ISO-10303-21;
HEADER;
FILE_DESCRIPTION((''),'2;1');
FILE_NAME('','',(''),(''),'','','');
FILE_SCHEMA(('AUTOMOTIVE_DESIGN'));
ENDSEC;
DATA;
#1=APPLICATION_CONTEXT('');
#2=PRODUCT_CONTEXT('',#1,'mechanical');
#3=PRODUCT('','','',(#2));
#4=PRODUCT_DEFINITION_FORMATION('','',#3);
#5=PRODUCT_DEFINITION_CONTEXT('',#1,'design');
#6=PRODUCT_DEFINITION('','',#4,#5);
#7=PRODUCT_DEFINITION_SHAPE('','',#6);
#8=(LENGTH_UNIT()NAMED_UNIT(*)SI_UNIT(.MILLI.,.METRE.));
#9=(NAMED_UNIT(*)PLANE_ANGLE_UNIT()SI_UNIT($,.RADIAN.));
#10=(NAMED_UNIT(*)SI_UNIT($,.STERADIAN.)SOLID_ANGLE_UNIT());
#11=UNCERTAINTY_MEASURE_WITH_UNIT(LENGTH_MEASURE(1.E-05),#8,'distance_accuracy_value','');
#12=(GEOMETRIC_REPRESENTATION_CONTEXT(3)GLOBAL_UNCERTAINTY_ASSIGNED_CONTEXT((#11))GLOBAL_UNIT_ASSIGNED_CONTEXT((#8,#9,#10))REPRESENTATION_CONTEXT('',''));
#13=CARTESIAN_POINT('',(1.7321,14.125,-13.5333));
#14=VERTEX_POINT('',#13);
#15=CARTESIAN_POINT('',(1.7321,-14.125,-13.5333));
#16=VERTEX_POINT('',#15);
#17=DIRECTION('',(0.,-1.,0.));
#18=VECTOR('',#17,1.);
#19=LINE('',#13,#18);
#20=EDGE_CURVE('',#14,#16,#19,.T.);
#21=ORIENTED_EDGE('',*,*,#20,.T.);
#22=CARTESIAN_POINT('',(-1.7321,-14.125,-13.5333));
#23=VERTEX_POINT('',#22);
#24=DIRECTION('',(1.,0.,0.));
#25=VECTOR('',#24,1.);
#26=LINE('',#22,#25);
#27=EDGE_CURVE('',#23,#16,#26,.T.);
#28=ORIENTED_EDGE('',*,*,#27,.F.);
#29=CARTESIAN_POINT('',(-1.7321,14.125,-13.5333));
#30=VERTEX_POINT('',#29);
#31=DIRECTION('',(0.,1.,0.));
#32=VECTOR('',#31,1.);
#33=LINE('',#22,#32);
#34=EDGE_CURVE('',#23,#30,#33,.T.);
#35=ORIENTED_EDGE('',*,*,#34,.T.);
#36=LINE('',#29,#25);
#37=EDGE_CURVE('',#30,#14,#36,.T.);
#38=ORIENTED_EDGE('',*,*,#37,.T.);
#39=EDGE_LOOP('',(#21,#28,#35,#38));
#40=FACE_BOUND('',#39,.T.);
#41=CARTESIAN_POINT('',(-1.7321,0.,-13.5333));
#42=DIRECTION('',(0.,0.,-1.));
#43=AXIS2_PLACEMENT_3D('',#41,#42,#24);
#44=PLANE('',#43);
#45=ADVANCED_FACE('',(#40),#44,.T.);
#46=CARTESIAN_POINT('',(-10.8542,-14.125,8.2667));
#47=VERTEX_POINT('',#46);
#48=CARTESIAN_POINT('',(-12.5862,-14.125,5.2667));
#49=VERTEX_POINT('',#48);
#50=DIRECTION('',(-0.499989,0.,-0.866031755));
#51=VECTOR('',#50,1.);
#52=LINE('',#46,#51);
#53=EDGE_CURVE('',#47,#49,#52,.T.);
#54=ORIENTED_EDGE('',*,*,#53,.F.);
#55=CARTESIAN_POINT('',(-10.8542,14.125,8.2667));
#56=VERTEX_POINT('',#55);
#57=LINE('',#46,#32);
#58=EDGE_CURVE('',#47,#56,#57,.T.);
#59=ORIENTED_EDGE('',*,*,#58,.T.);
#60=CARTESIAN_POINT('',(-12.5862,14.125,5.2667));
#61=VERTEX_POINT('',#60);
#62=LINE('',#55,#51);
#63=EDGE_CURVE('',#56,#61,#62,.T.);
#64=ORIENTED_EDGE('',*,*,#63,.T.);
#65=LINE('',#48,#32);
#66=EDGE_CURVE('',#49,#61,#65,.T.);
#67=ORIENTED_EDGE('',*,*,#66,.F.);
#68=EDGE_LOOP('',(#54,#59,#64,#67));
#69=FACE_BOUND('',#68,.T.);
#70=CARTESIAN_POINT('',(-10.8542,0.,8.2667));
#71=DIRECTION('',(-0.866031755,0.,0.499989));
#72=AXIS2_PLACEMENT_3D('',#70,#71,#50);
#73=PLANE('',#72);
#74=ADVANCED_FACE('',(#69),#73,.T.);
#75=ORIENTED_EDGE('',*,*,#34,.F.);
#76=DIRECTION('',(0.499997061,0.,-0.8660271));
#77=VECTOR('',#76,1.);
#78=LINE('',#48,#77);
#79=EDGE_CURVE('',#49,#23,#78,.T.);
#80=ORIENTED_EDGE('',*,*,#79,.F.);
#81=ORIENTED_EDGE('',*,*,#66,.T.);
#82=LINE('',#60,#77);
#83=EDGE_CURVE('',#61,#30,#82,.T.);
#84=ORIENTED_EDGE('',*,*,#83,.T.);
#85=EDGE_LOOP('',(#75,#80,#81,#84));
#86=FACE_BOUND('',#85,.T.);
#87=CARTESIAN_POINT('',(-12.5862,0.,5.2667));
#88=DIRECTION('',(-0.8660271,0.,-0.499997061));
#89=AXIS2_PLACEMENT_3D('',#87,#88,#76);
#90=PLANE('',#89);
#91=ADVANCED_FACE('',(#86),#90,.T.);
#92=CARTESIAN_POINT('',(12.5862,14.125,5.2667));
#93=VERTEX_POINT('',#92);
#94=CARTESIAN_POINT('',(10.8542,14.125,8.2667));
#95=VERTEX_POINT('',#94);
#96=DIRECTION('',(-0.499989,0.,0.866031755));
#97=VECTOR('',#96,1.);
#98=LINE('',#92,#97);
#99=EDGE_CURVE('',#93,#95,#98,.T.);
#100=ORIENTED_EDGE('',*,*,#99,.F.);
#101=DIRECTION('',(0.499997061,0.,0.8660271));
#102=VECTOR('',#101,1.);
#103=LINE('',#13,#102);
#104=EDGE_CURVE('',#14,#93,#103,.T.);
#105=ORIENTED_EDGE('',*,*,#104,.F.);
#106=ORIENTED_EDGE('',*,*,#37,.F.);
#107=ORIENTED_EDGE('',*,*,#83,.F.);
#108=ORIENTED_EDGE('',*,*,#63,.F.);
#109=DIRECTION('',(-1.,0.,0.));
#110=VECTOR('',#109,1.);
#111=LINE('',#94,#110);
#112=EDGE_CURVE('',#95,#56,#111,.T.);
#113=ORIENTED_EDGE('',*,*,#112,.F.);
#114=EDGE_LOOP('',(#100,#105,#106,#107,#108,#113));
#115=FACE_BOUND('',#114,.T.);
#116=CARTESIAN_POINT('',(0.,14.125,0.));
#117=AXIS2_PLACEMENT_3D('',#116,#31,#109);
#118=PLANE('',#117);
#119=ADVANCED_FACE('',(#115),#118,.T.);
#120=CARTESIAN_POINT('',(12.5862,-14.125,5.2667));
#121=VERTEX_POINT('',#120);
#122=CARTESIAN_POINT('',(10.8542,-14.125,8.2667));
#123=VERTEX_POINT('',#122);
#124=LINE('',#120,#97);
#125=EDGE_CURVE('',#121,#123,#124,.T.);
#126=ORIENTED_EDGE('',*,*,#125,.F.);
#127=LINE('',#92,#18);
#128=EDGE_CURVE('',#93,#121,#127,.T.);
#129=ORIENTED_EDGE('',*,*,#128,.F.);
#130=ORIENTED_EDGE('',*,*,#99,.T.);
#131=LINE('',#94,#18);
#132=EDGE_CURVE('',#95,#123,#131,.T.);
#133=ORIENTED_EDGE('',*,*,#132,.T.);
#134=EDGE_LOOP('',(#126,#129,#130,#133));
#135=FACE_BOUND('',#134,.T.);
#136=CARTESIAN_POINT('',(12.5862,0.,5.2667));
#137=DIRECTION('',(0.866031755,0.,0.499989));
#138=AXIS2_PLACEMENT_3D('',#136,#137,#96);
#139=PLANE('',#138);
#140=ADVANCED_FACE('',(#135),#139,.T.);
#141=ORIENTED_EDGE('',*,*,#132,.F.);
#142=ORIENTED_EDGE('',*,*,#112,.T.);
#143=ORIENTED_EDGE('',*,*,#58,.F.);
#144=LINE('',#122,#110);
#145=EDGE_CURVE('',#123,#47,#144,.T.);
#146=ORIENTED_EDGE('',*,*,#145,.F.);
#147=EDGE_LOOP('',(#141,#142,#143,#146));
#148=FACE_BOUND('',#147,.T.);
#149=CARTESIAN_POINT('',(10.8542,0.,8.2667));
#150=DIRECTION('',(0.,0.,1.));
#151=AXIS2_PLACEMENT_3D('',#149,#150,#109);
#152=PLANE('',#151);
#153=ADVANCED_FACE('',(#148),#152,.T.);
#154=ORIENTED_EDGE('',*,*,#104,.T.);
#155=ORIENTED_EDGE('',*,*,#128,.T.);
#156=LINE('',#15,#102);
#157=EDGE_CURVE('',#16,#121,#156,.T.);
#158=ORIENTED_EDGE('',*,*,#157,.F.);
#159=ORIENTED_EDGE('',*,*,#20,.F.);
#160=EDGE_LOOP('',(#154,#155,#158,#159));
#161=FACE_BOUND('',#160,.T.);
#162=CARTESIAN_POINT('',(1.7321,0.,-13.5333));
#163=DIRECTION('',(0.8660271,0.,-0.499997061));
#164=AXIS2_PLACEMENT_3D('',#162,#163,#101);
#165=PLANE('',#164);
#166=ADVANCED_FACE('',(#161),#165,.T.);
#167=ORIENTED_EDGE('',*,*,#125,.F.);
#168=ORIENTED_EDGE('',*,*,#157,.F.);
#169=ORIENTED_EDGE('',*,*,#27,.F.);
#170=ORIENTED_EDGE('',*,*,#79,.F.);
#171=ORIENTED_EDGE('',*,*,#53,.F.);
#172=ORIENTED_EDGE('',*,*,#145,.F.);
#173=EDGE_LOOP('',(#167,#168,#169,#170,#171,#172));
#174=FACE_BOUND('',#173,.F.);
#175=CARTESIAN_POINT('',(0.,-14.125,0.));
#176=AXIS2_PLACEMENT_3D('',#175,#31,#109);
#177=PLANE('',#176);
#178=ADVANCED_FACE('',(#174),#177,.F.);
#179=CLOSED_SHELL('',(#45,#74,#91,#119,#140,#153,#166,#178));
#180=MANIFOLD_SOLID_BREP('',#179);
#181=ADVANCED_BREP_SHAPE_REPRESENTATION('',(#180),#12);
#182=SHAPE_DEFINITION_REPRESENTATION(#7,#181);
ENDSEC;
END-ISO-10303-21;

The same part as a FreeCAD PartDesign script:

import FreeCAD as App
import Part
import Sketcher

V = App.Vector
Q = App.Units.Quantity

doc = App.newDocument("Part")
params = doc.addObject("Spreadsheet::Sheet", "Params")
for row, (alias, value) in enumerate([
    ("pad1_length", "28.25 mm"),
], start=1):
    params.set(f"A{row}", alias)
    params.set(f"B{row}", "=" + value)
    params.setAlias(f"B{row}", alias)

body = doc.addObject("PartDesign::Body", "Body")

# Sketch on XZ plane
sketch1 = body.newObject("Sketcher::SketchObject", "Sketch")
sketch1.AttachmentSupport = (doc.getObject("XZ_Plane"), [""])
sketch1.MapMode = "FlatFace"
sketch1.addGeometry([
    Part.LineSegment(V(1.7321, -13.5333, 0), V(-1.7321, -13.5333, 0)),  # 0
    Part.LineSegment(V(-1.7321, -13.5333, 0), V(-12.5862, 5.2667, 0)),  # 1
    Part.LineSegment(V(-12.5862, 5.2667, 0), V(-10.8542, 8.2667, 0)),  # 2
    Part.LineSegment(V(-10.8542, 8.2667, 0), V(10.8542, 8.2667, 0)),  # 3
    Part.LineSegment(V(10.8542, 8.2667, 0), V(12.5862, 5.2667, 0)),  # 4
    Part.LineSegment(V(12.5862, 5.2667, 0), V(1.7321, -13.5333, 0)),  # 5
], False)
sketch1.addConstraint([
    Sketcher.Constraint("Coincident", 0, 2, 1, 1),
    Sketcher.Constraint("Coincident", 1, 2, 2, 1),
    Sketcher.Constraint("Coincident", 2, 2, 3, 1),
    Sketcher.Constraint("Coincident", 3, 2, 4, 1),
    Sketcher.Constraint("Coincident", 4, 2, 5, 1),
    Sketcher.Constraint("Coincident", 5, 2, 0, 1),
    Sketcher.Constraint("Horizontal", 0),
    Sketcher.Constraint("Horizontal", 3),
    Sketcher.Constraint("Symmetric", 1, 2, 4, 2, -2),
    Sketcher.Constraint("Parallel", 1, 4),
    Sketcher.Constraint("Parallel", 2, 5),
    Sketcher.Constraint("Equal", 2, 4),
    Sketcher.Constraint("DistanceY", 0, 2, 2, 2, Q("21.8 mm")),
    Sketcher.Constraint("Angle", 1, Q("119.9998 deg")),
    Sketcher.Constraint("Distance", 2, Q("3.464 mm")),
    Sketcher.Constraint("DistanceX", 0, 2, 0, 1, Q("3.4642 mm")),
    Sketcher.Constraint("DistanceY", 0, 2, -1, 1, Q("13.5333 mm")),
])
pad1 = body.newObject("PartDesign::Pad", "Pad")
pad1.Profile = sketch1
pad1.setExpression("Length", "Params.pad1_length")
pad1.Midplane = True

doc.recompute()
